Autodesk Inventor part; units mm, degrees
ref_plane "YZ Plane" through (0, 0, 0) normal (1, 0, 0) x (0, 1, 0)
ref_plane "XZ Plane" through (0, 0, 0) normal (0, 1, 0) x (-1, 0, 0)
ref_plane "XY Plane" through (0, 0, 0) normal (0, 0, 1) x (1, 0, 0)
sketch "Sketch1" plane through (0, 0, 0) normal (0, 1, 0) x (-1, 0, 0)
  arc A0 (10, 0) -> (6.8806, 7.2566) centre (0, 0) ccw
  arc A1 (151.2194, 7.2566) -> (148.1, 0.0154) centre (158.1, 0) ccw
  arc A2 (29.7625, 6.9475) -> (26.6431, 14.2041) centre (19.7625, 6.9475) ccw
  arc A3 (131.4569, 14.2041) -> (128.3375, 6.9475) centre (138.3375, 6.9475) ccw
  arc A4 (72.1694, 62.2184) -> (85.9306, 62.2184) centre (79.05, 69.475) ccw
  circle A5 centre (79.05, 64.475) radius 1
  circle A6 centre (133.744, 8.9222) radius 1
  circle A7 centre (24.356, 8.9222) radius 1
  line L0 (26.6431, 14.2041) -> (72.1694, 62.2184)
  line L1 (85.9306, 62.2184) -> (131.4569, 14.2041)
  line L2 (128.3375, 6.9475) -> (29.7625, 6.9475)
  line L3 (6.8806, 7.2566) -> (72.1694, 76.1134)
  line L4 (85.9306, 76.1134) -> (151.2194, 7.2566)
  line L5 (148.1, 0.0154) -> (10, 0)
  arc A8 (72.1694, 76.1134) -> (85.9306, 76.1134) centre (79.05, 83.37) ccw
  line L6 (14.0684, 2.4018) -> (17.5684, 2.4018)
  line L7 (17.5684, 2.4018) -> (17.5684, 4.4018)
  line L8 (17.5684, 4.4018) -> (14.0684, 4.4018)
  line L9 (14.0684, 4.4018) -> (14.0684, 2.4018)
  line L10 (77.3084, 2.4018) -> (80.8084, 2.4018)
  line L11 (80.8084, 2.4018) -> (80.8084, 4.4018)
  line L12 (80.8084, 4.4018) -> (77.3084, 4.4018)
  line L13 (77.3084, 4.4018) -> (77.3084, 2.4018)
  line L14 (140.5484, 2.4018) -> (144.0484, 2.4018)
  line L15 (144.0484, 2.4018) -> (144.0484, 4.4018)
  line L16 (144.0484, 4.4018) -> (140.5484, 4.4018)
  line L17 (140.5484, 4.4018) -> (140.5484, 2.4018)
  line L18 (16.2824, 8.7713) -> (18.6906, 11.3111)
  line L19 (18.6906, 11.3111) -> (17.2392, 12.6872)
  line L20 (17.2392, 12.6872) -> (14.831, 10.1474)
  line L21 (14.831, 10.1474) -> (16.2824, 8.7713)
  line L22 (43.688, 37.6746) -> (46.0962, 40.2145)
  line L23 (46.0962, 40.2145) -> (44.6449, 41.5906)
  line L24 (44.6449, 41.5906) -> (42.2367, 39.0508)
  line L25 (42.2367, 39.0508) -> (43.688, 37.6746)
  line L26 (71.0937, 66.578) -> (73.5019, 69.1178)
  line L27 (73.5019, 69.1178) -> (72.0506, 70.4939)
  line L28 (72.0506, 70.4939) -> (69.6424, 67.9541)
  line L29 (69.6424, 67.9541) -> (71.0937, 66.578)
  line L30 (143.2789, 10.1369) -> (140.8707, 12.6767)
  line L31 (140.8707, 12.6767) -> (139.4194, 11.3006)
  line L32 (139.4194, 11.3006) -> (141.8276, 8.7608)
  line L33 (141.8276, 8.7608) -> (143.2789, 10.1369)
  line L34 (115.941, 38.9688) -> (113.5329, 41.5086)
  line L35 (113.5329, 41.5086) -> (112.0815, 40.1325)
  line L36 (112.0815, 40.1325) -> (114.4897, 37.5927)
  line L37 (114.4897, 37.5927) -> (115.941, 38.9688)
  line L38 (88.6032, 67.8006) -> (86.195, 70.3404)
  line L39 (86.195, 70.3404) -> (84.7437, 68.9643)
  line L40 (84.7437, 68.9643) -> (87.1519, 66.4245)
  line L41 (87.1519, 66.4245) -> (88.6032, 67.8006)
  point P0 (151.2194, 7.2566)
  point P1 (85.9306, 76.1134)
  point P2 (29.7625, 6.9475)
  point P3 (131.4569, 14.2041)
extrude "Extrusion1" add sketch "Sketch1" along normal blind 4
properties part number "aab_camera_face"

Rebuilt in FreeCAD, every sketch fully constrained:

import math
import FreeCAD as App
import Part
import Sketcher
from FreeCAD import Vector
Q = App.Units.Quantity


def add_polygon(sketch, points):
    """Adds a closed chain of lines whose ends are joined by coincident constraints."""
    first, n = sketch.GeometryCount, len(points)
    for a, b in zip(points, points[1:] + points[:1]):
        sketch.addGeometry(Part.LineSegment(App.Vector(*a, 0), App.Vector(*b, 0)), False)
    for i in range(n):
        sketch.addConstraint(Sketcher.Constraint("Coincident", first + i, 2, first + (i + 1) % n, 1))

doc = App.newDocument("Part")
body = doc.addObject("PartDesign::Body", "Body")

# Sketch on XZ plane
sketch1 = body.newObject("Sketcher::SketchObject", "Sketch")
sketch1.AttachmentSupport = (doc.getObject("XZ_Plane"), [""])
sketch1.MapMode = "FlatFace"
sketch1.addGeometry(Part.ArcOfCircle(Part.Circle(Vector(0, 0, 0), Vector(0, 0, 1), 10), math.radians(133.476492), math.radians(180)), False)  # 0
sketch1.addGeometry(Part.LineSegment(Vector(-10, 0, 0), Vector(-148.1, 0.0154, 0)), False)  # 1
sketch1.addGeometry(Part.ArcOfCircle(Part.Circle(Vector(-158.1, 0, 0), Vector(0, 0, 1), 10.000045), math.radians(0.088235), math.radians(46.523508)), False)  # 2
sketch1.addGeometry(Part.LineSegment(Vector(-151.2194, 7.2566, 0), Vector(-85.9306, 76.1134, 0)), False)  # 3
sketch1.addGeometry(Part.ArcOfCircle(Part.Circle(Vector(-79.05, 83.37, 0), Vector(0, 0, 1), 10.000045), math.radians(-133.476492), math.radians(-46.523508)), False)  # 4
sketch1.addGeometry(Part.LineSegment(Vector(-72.1694, 76.1134, 0), Vector(-6.8806, 7.2566, 0)), False)  # 5
add_polygon(sketch1, [(-17.5684, 2.4018), (-14.0684, 2.4018), (-14.0684, 4.4018), (-17.5684, 4.4018)])  # lines 6-9
sketch1.addGeometry(Part.Circle(Vector(-24.356, 8.9222, 0), Vector(0, 0, 1), 1), False)  # 10
add_polygon(sketch1, [(-18.6906, 11.3111), (-16.2824, 8.7713), (-14.831, 10.1474), (-17.2392, 12.6872)])  # lines 11-14
sketch1.addGeometry(Part.LineSegment(Vector(-128.3375, 6.9475, 0), Vector(-29.7625, 6.9475, 0)), False)  # 15
sketch1.addGeometry(Part.ArcOfCircle(Part.Circle(Vector(-19.7625, 6.9475, 0), Vector(0, 0, 1), 10), math.radians(133.476492), math.radians(180)), False)  # 16
sketch1.addGeometry(Part.LineSegment(Vector(-26.6431, 14.2041, 0), Vector(-72.1694, 62.2184, 0)), False)  # 17
sketch1.addGeometry(Part.ArcOfCircle(Part.Circle(Vector(-79.05, 69.475, 0), Vector(0, 0, 1), 10.000045), math.radians(-133.476492), math.radians(-46.523508)), False)  # 18
sketch1.addGeometry(Part.LineSegment(Vector(-85.9306, 62.2184, 0), Vector(-131.4569, 14.2041, 0)), False)  # 19
sketch1.addGeometry(Part.ArcOfCircle(Part.Circle(Vector(-138.3375, 6.9475, 0), Vector(0, 0, 1), 10.000045), math.radians(0), math.radians(46.523508)), False)  # 20
add_polygon(sketch1, [(-80.8084, 2.4018), (-77.3084, 2.4018), (-77.3084, 4.4018), (-80.8084, 4.4018)])  # lines 21-24
add_polygon(sketch1, [(-144.0484, 2.4018), (-140.5484, 2.4018), (-140.5484, 4.4018), (-144.0484, 4.4018)])  # lines 25-28
sketch1.addGeometry(Part.Circle(Vector(-133.744, 8.9222, 0), Vector(0, 0, 1), 1), False)  # 29
add_polygon(sketch1, [(-140.8707, 12.6767), (-143.2789, 10.1369), (-141.8276, 8.7608), (-139.4194, 11.3006)])  # lines 30-33
add_polygon(sketch1, [(-46.0962, 40.2145), (-43.688, 37.6746), (-42.2367, 39.0508), (-44.6449, 41.5906)])  # lines 34-37
sketch1.addGeometry(Part.Circle(Vector(-79.05, 64.475, 0), Vector(0, 0, 1), 1), False)  # 38
add_polygon(sketch1, [(-73.5019, 69.1178), (-71.0937, 66.578), (-69.6424, 67.9541), (-72.0506, 70.4939)])  # lines 39-42
add_polygon(sketch1, [(-113.5329, 41.5086), (-115.941, 38.9688), (-114.4897, 37.5927), (-112.0815, 40.1325)])  # lines 43-46
add_polygon(sketch1, [(-86.195, 70.3404), (-88.6032, 67.8006), (-87.1519, 66.4245), (-84.7437, 68.9643)])  # lines 47-50
sketch1.addConstraint(Sketcher.Constraint("Coincident", 0, 2, 1, 1))
sketch1.addConstraint(Sketcher.Constraint("Coincident", 1, 2, 2, 1))
sketch1.addConstraint(Sketcher.Constraint("Coincident", 2, 2, 3, 1))
sketch1.addConstraint(Sketcher.Constraint("Coincident", 3, 2, 4, 1))
sketch1.addConstraint(Sketcher.Constraint("Coincident", 4, 2, 5, 1))
sketch1.addConstraint(Sketcher.Constraint("Coincident", 5, 2, 0, 1))
sketch1.addConstraint(Sketcher.Constraint("Coincident", 15, 2, 16, 2))
sketch1.addConstraint(Sketcher.Constraint("Coincident", 16, 1, 17, 1))
sketch1.addConstraint(Sketcher.Constraint("Coincident", 17, 2, 18, 2))
sketch1.addConstraint(Sketcher.Constraint("Coincident", 18, 1, 19, 1))
sketch1.addConstraint(Sketcher.Constraint("Coincident", 19, 2, 20, 2))
sketch1.addConstraint(Sketcher.Constraint("Coincident", 20, 1, 15, 1))
sketch1.addConstraint(Sketcher.Constraint("Horizontal", 6))
sketch1.addConstraint(Sketcher.Constraint("Vertical", 7))
sketch1.addConstraint(Sketcher.Constraint("Horizontal", 8))
sketch1.addConstraint(Sketcher.Constraint("Vertical", 9))
sketch1.addConstraint(Sketcher.Constraint("Horizontal", 15))
sketch1.addConstraint(Sketcher.Constraint("Horizontal", 21))
sketch1.addConstraint(Sketcher.Constraint("Vertical", 22))
sketch1.addConstraint(Sketcher.Constraint("Horizontal", 23))
sketch1.addConstraint(Sketcher.Constraint("Vertical", 24))
sketch1.addConstraint(Sketcher.Constraint("Horizontal", 25))
sketch1.addConstraint(Sketcher.Constraint("Vertical", 26))
sketch1.addConstraint(Sketcher.Constraint("Horizontal", 27))
sketch1.addConstraint(Sketcher.Constraint("Vertical", 28))
sketch1.addConstraint(Sketcher.Constraint("Coincident", 0, 3, -1, 1))
sketch1.addConstraint(Sketcher.Constraint("PointOnObject", 2, 3, -1))
sketch1.addConstraint(Sketcher.Constraint("PointOnObject", 0, 2, -1))
sketch1.addConstraint(Sketcher.Constraint("Diameter", 10, Q("2 mm")))
sketch1.addConstraint(Sketcher.Constraint("Diameter", 29, Q("2 mm")))
sketch1.addConstraint(Sketcher.Constraint("Diameter", 38, Q("2 mm")))
sketch1.addConstraint(Sketcher.Constraint("Radius", 0, Q("10 mm")))
sketch1.addConstraint(Sketcher.Constraint("Radius", 2, Q("10 mm")))
sketch1.addConstraint(Sketcher.Constraint("Radius", 4, Q("10 mm")))
sketch1.addConstraint(Sketcher.Constraint("Radius", 16, Q("10 mm")))
sketch1.addConstraint(Sketcher.Constraint("Radius", 18, Q("10 mm")))
sketch1.addConstraint(Sketcher.Constraint("Radius", 20, Q("10 mm")))
sketch1.addConstraint(Sketcher.Constraint("DistanceY", 7, 1, 7, 2, Q("2 mm")))
sketch1.addConstraint(Sketcher.Constraint("DistanceY", 22, 1, 22, 2, Q("2 mm")))
sketch1.addConstraint(Sketcher.Constraint("DistanceY", 26, 1, 26, 2, Q("2 mm")))
sketch1.addConstraint(Sketcher.Constraint("Distance", 12, Q("2 mm")))
sketch1.addConstraint(Sketcher.Constraint("Distance", 14, Q("2 mm")))
sketch1.addConstraint(Sketcher.Constraint("Distance", 31, Q("2 mm")))
sketch1.addConstraint(Sketcher.Constraint("Distance", 33, Q("2 mm")))
sketch1.addConstraint(Sketcher.Constraint("Distance", 35, Q("2 mm")))
sketch1.addConstraint(Sketcher.Constraint("Distance", 37, Q("2 mm")))
sketch1.addConstraint(Sketcher.Constraint("Distance", 40, Q("2 mm")))
sketch1.addConstraint(Sketcher.Constraint("Distance", 42, Q("2 mm")))
sketch1.addConstraint(Sketcher.Constraint("Distance", 44, Q("2 mm")))
sketch1.addConstraint(Sketcher.Constraint("Distance", 46, Q("2 mm")))
sketch1.addConstraint(Sketcher.Constraint("Distance", 48, Q("2 mm")))
sketch1.addConstraint(Sketcher.Constraint("Distance", 50, Q("2 mm")))
sketch1.addConstraint(Sketcher.Constraint("DistanceX", 6, 1, 6, 2, Q("3.5 mm")))
sketch1.addConstraint(Sketcher.Constraint("DistanceX", 21, 1, 21, 2, Q("3.5 mm")))
sketch1.addConstraint(Sketcher.Constraint("DistanceX", 25, 1, 25, 2, Q("3.5 mm")))
sketch1.addConstraint(Sketcher.Constraint("DistanceY", 38, 3, 18, 3, Q("5 mm")))
sketch1.addConstraint(Sketcher.Constraint("Distance", 1, Q("138.1 mm")))
sketch1.addConstraint(Sketcher.Constraint("Distance", 11, Q("3.5 mm")))
sketch1.addConstraint(Sketcher.Constraint("Distance", 13, Q("3.5 mm")))
sketch1.addConstraint(Sketcher.Constraint("Distance", 30, Q("3.5 mm")))
sketch1.addConstraint(Sketcher.Constraint("Distance", 32, Q("3.5 mm")))
sketch1.addConstraint(Sketcher.Constraint("Distance", 34, Q("3.5 mm")))
sketch1.addConstraint(Sketcher.Constraint("Distance", 36, Q("3.5 mm")))
sketch1.addConstraint(Sketcher.Constraint("Distance", 39, Q("3.5 mm")))
sketch1.addConstraint(Sketcher.Constraint("Distance", 41, Q("3.5 mm")))
sketch1.addConstraint(Sketcher.Constraint("Distance", 43, Q("3.5 mm")))
sketch1.addConstraint(Sketcher.Constraint("Distance", 45, Q("3.5 mm")))
sketch1.addConstraint(Sketcher.Constraint("Distance", 47, Q("3.5 mm")))
sketch1.addConstraint(Sketcher.Constraint("Distance", 49, Q("3.5 mm")))
sketch1.addConstraint(Sketcher.Constraint("DistanceY", 16, 3, 12, 2, Q("3.2 mm")))
sketch1.addConstraint(Sketcher.Constraint("DistanceX", 15, 1, 15, 2, Q("98.575 mm")))
sketch1.addConstraint(Sketcher.Constraint("DistanceX", 4, 3, -1, 1, Q("79.05 mm")))
sketch1.addConstraint(Sketcher.Constraint("DistanceY", -1, 1, 4, 3, Q("83.37 mm")))
sketch1.addConstraint(Sketcher.Constraint("DistanceX", 18, 3, -1, 1, Q("79.05 mm")))
sketch1.addConstraint(Sketcher.Constraint("DistanceX", 38, 3, -1, 1, Q("79.05 mm")))
sketch1.addConstraint(Sketcher.Constraint("DistanceX", 16, 3, 11, 2, Q("3.48 mm")))
sketch1.addConstraint(Sketcher.Constraint("DistanceX", 31, 2, 20, 3, Q("3.49 mm")))
sketch1.addConstraint(Sketcher.Constraint("DistanceY", 34, 2, 37, 2, Q("2.54 mm")))
sketch1.addConstraint(Sketcher.Constraint("DistanceX", 10, 3, -1, 1, Q("24.356 mm")))
sketch1.addConstraint(Sketcher.Constraint("DistanceY", -1, 1, 18, 3, Q("69.475 mm")))
sketch1.addConstraint(Sketcher.Constraint("DistanceX", 29, 3, -1, 1, Q("133.744 mm")))
sketch1.addConstraint(Sketcher.Constraint("DistanceX", 12, 2, -1, 1, Q("14.831 mm")))
sketch1.addConstraint(Sketcher.Constraint("DistanceY", -1, 1, 14, 2, Q("11.311 mm")))
sketch1.addConstraint(Sketcher.Constraint("DistanceX", 16, 1, -1, 1, Q("26.643 mm")))
sketch1.addConstraint(Sketcher.Constraint("DistanceY", -1, 1, 16, 1, Q("14.204 mm")))
sketch1.addConstraint(Sketcher.Constraint("DistanceX", 19, 2, -1, 1, Q("131.457 mm")))
sketch1.addConstraint(Sketcher.Constraint("DistanceY", -1, 1, 19, 2, Q("14.204 mm")))
sketch1.addConstraint(Sketcher.Constraint("DistanceX", 30, 2, -1, 1, Q("143.279 mm")))
sketch1.addConstraint(Sketcher.Constraint("DistanceY", -1, 1, 30, 2, Q("10.137 mm")))
sketch1.addConstraint(Sketcher.Constraint("DistanceX", 34, 2, -1, 1, Q("43.688 mm")))
sketch1.addConstraint(Sketcher.Constraint("DistanceX", 36, 2, -1, 1, Q("44.645 mm")))
sketch1.addConstraint(Sketcher.Constraint("DistanceY", -1, 1, 39, 2, Q("66.578 mm")))
sketch1.addConstraint(Sketcher.Constraint("DistanceY", -1, 1, 40, 2, Q("67.954 mm")))
sketch1.addConstraint(Sketcher.Constraint("DistanceY", -1, 1, 41, 2, Q("70.494 mm")))
sketch1.addConstraint(Sketcher.Constraint("DistanceX", 42, 2, -1, 1, Q("73.502 mm")))
sketch1.addConstraint(Sketcher.Constraint("DistanceX", 43, 2, -1, 1, Q("115.941 mm")))
sketch1.addConstraint(Sketcher.Constraint("DistanceX", 46, 2, -1, 1, Q("113.533 mm")))
sketch1.addConstraint(Sketcher.Constraint("DistanceX", 48, 2, -1, 1, Q("87.152 mm")))
sketch1.addConstraint(Sketcher.Constraint("DistanceX", 50, 2, -1, 1, Q("86.195 mm")))
sketch1.addConstraint(Sketcher.Constraint("DistanceY", 1, 2, 20, 3, Q("6.932 mm")))
sketch1.addConstraint(Sketcher.Constraint("DistanceX", 2, 2, 20, 3, Q("12.882 mm")))
sketch1.addConstraint(Sketcher.Constraint("DistanceX", 20, 3, 3, 2, Q("52.407 mm")))
sketch1.addConstraint(Sketcher.Constraint("DistanceX", 16, 3, 5, 2, Q("12.882 mm")))
sketch1.addConstraint(Sketcher.Constraint("DistanceX", 16, 3, 6, 2, Q("5.694 mm")))
sketch1.addConstraint(Sketcher.Constraint("DistanceY", 11, 2, 12, 2, Q("1.376 mm")))
sketch1.addConstraint(Sketcher.Constraint("DistanceY", 10, 3, 13, 2, Q("3.765 mm")))
sketch1.addConstraint(Sketcher.Constraint("DistanceY", 17, 2, 4, 2, Q("13.895 mm")))
sketch1.addConstraint(Sketcher.Constraint("DistanceY", 17, 2, 3, 2, Q("13.895 mm")))
sketch1.addConstraint(Sketcher.Constraint("DistanceY", 18, 1, 3, 2, Q("13.895 mm")))
sketch1.addConstraint(Sketcher.Constraint("DistanceY", 29, 3, 19, 2, Q("5.282 mm")))
sketch1.addConstraint(Sketcher.Constraint("DistanceY", 1, 2, 20, 1, Q("6.932 mm")))
sketch1.addConstraint(Sketcher.Constraint("DistanceX", 21, 2, 15, 2, Q("47.546 mm")))
sketch1.addConstraint(Sketcher.Constraint("DistanceX", 25, 2, 20, 3, Q("2.211 mm")))
sketch1.addConstraint(Sketcher.Constraint("DistanceY", 27, 2, 30, 2, Q("5.735 mm")))
sketch1.addConstraint(Sketcher.Constraint("DistanceX", 32, 2, 20, 3, Q("1.082 mm")))
sketch1.addConstraint(Sketcher.Constraint("DistanceY", 15, 2, 34, 2, Q("30.727 mm")))
sketch1.addConstraint(Sketcher.Constraint("DistanceY", 33, 2, 43, 2, Q("26.292 mm")))
sketch1.addConstraint(Sketcher.Constraint("DistanceY", 44, 2, 43, 2, Q("1.376 mm")))
sketch1.addConstraint(Sketcher.Constraint("DistanceY", 48, 2, 47, 2, Q("1.376 mm")))
sketch1.addConstraint(Sketcher.Constraint("DistanceY", 18, 1, 48, 2, Q("4.206 mm")))
sketch1.addConstraint(Sketcher.Constraint("DistanceY", -1, 1, 6, 2, Q("2.4018 mm")))
sketch1.addConstraint(Sketcher.Constraint("DistanceY", -1, 1, 21, 2, Q("2.4018 mm")))
pad1 = body.newObject("PartDesign::Pad", "Pad")
pad1.Profile = sketch1
pad1.Length = 4
pad1.Reversed = True

doc.recompute()
